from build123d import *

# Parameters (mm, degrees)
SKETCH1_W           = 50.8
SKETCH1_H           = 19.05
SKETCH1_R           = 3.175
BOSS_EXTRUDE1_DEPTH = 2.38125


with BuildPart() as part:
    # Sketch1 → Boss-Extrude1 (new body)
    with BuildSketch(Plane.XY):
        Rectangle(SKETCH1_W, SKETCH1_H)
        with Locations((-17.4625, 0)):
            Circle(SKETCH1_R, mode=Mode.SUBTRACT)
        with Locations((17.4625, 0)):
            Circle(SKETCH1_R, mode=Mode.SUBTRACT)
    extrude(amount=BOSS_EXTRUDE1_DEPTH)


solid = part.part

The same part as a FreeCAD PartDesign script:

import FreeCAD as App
import Part
import Sketcher

V = App.Vector
Q = App.Units.Quantity


def add_polygon(sketch, points):
    """Adds a closed chain of lines whose ends are joined by coincident constraints."""
    first, n = sketch.GeometryCount, len(points)
    for a, b in zip(points, points[1:] + points[:1]):
        sketch.addGeometry(Part.LineSegment(App.Vector(*a, 0), App.Vector(*b, 0)), False)
    for i in range(n):
        sketch.addConstraint(Sketcher.Constraint("Coincident", first + i, 2, first + (i + 1) % n, 1))

doc = App.newDocument("Part")
body = doc.addObject("PartDesign::Body", "Body")

# Sketch on XY plane
sketch1 = doc.addObject("Sketcher::SketchObject", "Sketch")
body.addObject(sketch1)
sketch1.AttachmentSupport = (doc.XY_Plane, [""])
sketch1.MapMode = "FlatFace"
add_polygon(sketch1, [(-25.4, 9.5), (-25.4, -9.5), (25.4, -9.5), (25.4, 9.5)])  # lines 0-3
sketch1.addGeometry(Part.Circle(V(-17.5, 0, 0), V(0, 0, 1), 3.2), False)  # 4
sketch1.addGeometry(Part.Circle(V(17.5, 0, 0), V(0, 0, 1), 3.2), False)  # 5
sketch1.addConstraint([
    Sketcher.Constraint("Vertical", 0),
    Sketcher.Constraint("Horizontal", 1),
    Sketcher.Constraint("Vertical", 2),
    Sketcher.Constraint("Horizontal", 3),
    Sketcher.Constraint("Equal", 4, 5),
    Sketcher.Constraint("Symmetric", 4, 3, 5, 3, -1, 1),
    Sketcher.Constraint("Symmetric", 0, 2, 2, 2, -1, 1),
    Sketcher.Constraint("PointOnObject", 4, 3, -1),
    Sketcher.Constraint("Diameter", 4, Q("0.25 in")),
    Sketcher.Constraint("DistanceX", 1, 1, 1, 2, Q("2 in")),
    Sketcher.Constraint("DistanceY", 0, 2, 0, 1, Q("0.75 in")),
    Sketcher.Constraint("DistanceX", 4, 3, -1, 1, Q("0.6875 in")),
])
pad1 = doc.addObject("PartDesign::Pad", "Pad")
body.addObject(pad1)
pad1.Profile = sketch1
pad1.Length = Q("0.09375 in")

doc.recompute()
